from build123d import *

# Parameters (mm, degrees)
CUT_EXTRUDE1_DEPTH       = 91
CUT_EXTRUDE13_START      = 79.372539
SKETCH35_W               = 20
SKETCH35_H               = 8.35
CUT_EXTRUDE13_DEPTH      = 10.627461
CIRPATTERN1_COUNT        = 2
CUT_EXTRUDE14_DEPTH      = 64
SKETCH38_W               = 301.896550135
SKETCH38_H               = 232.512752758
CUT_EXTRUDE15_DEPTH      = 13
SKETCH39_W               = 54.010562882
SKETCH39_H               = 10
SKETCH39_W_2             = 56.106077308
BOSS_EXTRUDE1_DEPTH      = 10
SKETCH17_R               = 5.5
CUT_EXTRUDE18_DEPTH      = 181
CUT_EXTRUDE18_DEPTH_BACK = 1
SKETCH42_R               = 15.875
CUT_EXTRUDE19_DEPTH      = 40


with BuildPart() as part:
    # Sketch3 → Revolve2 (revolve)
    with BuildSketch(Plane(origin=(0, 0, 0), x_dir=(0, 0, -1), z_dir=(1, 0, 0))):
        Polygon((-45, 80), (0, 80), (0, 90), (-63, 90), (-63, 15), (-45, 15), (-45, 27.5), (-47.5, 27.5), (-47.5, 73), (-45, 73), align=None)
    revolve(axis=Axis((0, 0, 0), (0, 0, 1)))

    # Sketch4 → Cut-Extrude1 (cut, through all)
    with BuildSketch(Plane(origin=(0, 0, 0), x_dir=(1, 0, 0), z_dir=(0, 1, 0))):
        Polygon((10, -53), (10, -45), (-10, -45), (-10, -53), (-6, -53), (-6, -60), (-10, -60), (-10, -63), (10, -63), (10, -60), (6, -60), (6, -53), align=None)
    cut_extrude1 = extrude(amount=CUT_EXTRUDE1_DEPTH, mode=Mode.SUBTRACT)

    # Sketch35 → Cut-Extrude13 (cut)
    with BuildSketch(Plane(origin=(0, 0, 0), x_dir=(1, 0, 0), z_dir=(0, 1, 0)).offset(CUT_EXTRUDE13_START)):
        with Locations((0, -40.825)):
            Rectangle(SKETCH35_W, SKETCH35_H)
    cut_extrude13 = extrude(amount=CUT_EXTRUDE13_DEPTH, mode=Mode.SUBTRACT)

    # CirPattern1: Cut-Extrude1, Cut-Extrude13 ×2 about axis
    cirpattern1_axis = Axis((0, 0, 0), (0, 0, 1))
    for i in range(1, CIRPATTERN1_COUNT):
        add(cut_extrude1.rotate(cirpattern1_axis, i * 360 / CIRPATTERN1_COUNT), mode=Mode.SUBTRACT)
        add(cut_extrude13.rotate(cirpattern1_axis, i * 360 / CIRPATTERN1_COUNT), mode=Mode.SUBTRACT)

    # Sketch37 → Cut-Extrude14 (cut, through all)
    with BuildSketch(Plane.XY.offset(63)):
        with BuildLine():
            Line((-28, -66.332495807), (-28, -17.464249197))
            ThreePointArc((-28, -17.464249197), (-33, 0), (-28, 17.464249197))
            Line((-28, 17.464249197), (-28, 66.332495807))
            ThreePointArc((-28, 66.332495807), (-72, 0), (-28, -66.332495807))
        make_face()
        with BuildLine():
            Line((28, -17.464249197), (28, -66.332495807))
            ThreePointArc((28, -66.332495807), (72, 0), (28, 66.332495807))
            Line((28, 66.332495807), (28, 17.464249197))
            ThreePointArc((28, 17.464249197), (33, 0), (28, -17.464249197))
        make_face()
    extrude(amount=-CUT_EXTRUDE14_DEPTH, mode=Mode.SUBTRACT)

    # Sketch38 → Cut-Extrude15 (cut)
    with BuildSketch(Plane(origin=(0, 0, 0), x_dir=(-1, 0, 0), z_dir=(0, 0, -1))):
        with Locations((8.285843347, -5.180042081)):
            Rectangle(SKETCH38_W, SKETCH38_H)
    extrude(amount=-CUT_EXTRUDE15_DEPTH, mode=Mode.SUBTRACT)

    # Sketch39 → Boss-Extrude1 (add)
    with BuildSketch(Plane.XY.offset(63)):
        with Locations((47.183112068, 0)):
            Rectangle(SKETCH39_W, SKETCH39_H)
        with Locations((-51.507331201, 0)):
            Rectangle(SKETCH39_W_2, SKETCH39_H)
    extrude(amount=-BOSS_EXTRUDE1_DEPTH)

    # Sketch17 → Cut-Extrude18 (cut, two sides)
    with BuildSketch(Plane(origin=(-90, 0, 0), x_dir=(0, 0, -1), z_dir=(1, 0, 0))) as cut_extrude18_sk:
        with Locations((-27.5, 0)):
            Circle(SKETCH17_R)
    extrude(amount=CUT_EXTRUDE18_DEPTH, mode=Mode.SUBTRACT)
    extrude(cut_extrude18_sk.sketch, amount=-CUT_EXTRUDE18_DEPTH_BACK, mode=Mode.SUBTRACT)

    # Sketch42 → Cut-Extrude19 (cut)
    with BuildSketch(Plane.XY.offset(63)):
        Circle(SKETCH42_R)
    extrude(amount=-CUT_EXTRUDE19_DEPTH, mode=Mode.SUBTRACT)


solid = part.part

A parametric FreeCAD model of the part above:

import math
import FreeCAD as App
import Part
import Sketcher
from FreeCAD import Vector

doc = App.newDocument("Part")
body = doc.addObject("PartDesign::Body", "Body")

# Sketch on YZ plane
sketch1 = body.newObject("Sketcher::SketchObject", "Sketch")
sketch1.AttachmentSupport = (doc.getObject("YZ_Plane"), [""])
sketch1.MapMode = "FlatFace"
sketch1.addGeometry([
    Part.LineSegment(Vector(80, 45, 0), Vector(80, 0, 0)),  # 0
    Part.LineSegment(Vector(80, 0, 0), Vector(90, 0, 0)),  # 1
    Part.LineSegment(Vector(90, 0, 0), Vector(90, 63, 0)),  # 2
    Part.LineSegment(Vector(90, 63, 0), Vector(15, 63, 0)),  # 3
    Part.LineSegment(Vector(15, 63, 0), Vector(15, 45, 0)),  # 4
    Part.LineSegment(Vector(15, 45, 0), Vector(27.5, 45, 0)),  # 5
    Part.LineSegment(Vector(27.5, 45, 0), Vector(27.5, 47.5, 0)),  # 6
    Part.LineSegment(Vector(27.5, 47.5, 0), Vector(73, 47.5, 0)),  # 7
    Part.LineSegment(Vector(73, 47.5, 0), Vector(73, 45, 0)),  # 8
    Part.LineSegment(Vector(73, 45, 0), Vector(80, 45, 0)),  # 9
], False)
sketch1.addConstraint([
    Sketcher.Constraint("Coincident", 0, 2, 1, 1),
    Sketcher.Constraint("Coincident", 1, 2, 2, 1),
    Sketcher.Constraint("Coincident", 2, 2, 3, 1),
    Sketcher.Constraint("Coincident", 3, 2, 4, 1),
    Sketcher.Constraint("Coincident", 4, 2, 5, 1),
    Sketcher.Constraint("Coincident", 5, 2, 6, 1),
    Sketcher.Constraint("Coincident", 6, 2, 7, 1),
    Sketcher.Constraint("Coincident", 7, 2, 8, 1),
    Sketcher.Constraint("Coincident", 8, 2, 9, 1),
    Sketcher.Constraint("Coincident", 9, 2, 0, 1),
    Sketcher.Constraint("Vertical", 0),
    Sketcher.Constraint("Horizontal", 1),
    Sketcher.Constraint("Vertical", 2),
    Sketcher.Constraint("Horizontal", 3),
    Sketcher.Constraint("Vertical", 4),
    Sketcher.Constraint("Horizontal", 5),
    Sketcher.Constraint("Vertical", 6),
    Sketcher.Constraint("Horizontal", 7),
    Sketcher.Constraint("Vertical", 8),
    Sketcher.Constraint("Horizontal", 9),
    Sketcher.Constraint("PointOnObject", 0, 2, -1),
    Sketcher.Constraint("Horizontal", 5, 2, 8, 2),
    Sketcher.Constraint("DistanceX", 1, 1, 1, 2, 10.0),
    Sketcher.Constraint("DistanceX", 3, 2, 3, 1, 75.0),
    Sketcher.Constraint("DistanceX", 9, 1, 9, 2, 7.0),
    Sketcher.Constraint("DistanceY", 0, 2, 0, 1, 45.0),
    Sketcher.Constraint("DistanceY", 2, 1, 2, 2, 63.0),
    Sketcher.Constraint("DistanceX", 5, 1, 5, 2, 12.5),
    Sketcher.Constraint("DistanceY", 6, 1, 6, 2, 2.5),
    Sketcher.Constraint("DistanceX", -1, 1, 0, 2, 80.0),
])
revolution = body.newObject("PartDesign::Revolution", "Revolution")
revolution.Profile = sketch1
revolution.ReferenceAxis = (sketch1, ["V_Axis"])
revolution.Angle = 360

# Sketch on XZ plane
sketch2 = body.newObject("Sketcher::SketchObject", "Sketch001")
sketch2.AttachmentSupport = (doc.getObject("XZ_Plane"), [""])
sketch2.MapMode = "FlatFace"
sketch2.addGeometry([
    Part.LineSegment(Vector(10, 53, 0), Vector(10, 45, 0)),  # 0
    Part.LineSegment(Vector(10, 45, 0), Vector(-10, 45, 0)),  # 1
    Part.LineSegment(Vector(-10, 45, 0), Vector(-10, 53, 0)),  # 2
    Part.LineSegment(Vector(-10, 53, 0), Vector(-6, 53, 0)),  # 3
    Part.LineSegment(Vector(-6, 53, 0), Vector(-6, 60, 0)),  # 4
    Part.LineSegment(Vector(-6, 60, 0), Vector(-10, 60, 0)),  # 5
    Part.LineSegment(Vector(-10, 60, 0), Vector(-10, 63, 0)),  # 6
    Part.LineSegment(Vector(-10, 63, 0), Vector(10, 63, 0)),  # 7
    Part.LineSegment(Vector(10, 63, 0), Vector(10, 60, 0)),  # 8
    Part.LineSegment(Vector(10, 60, 0), Vector(6, 60, 0)),  # 9
    Part.LineSegment(Vector(6, 60, 0), Vector(6, 53, 0)),  # 10
    Part.LineSegment(Vector(6, 53, 0), Vector(10, 53, 0)),  # 11
], False)
sketch2.addConstraint([
    Sketcher.Constraint("Coincident", 0, 2, 1, 1),
    Sketcher.Constraint("Coincident", 1, 2, 2, 1),
    Sketcher.Constraint("Coincident", 2, 2, 3, 1),
    Sketcher.Constraint("Coincident", 3, 2, 4, 1),
    Sketcher.Constraint("Coincident", 4, 2, 5, 1),
    Sketcher.Constraint("Coincident", 5, 2, 6, 1),
    Sketcher.Constraint("Coincident", 6, 2, 7, 1),
    Sketcher.Constraint("Coincident", 7, 2, 8, 1),
    Sketcher.Constraint("Coincident", 8, 2, 9, 1),
    Sketcher.Constraint("Coincident", 9, 2, 10, 1),
    Sketcher.Constraint("Coincident", 10, 2, 11, 1),
    Sketcher.Constraint("Coincident", 11, 2, 0, 1),
    Sketcher.Constraint("Vertical", 0),
    Sketcher.Constraint("Horizontal", 1),
    Sketcher.Constraint("Vertical", 2),
    Sketcher.Constraint("Horizontal", 3),
    Sketcher.Constraint("Vertical", 4),
    Sketcher.Constraint("Horizontal", 5),
    Sketcher.Constraint("Vertical", 6),
    Sketcher.Constraint("Horizontal", 7),
    Sketcher.Constraint("Vertical", 8),
    Sketcher.Constraint("Horizontal", 9),
    Sketcher.Constraint("Vertical", 10),
    Sketcher.Constraint("Horizontal", 11),
    Sketcher.Constraint("Symmetric", 5, 2, 8, 2, -2),
    Sketcher.Constraint("Symmetric", 3, 2, 10, 2, -2),
    Sketcher.Constraint("Vertical", 2, 2, 5, 2),
    Sketcher.Constraint("Vertical", 0, 2, 7, 2),
    Sketcher.Constraint("DistanceX", 1, 2, 1, 1, 20.0),
    Sketcher.Constraint("DistanceX", 3, 1, 3, 2, 4.0),
    Sketcher.Constraint("DistanceY", 0, 2, 0, 1, 8.0),
    Sketcher.Constraint("DistanceY", 4, 1, 4, 2, 7.0),
    Sketcher.Constraint("DistanceY", 6, 1, 6, 2, 3.0),
    Sketcher.Constraint("DistanceY", -1, 1, 0, 2, 45.0),
])
pocket1 = body.newObject("PartDesign::Pocket", "Pocket")
pocket1.Profile = sketch2
pocket1.Type = "ThroughAll"

# Sketch on XZ plane
sketch3 = body.newObject("Sketcher::SketchObject", "Sketch002")
sketch3.AttachmentSupport = (doc.getObject("XZ_Plane"), [""])
sketch3.MapMode = "FlatFace"
sketch3.AttachmentOffset = App.Placement(Vector(0, 0, -79.372539), App.Rotation())
sketch3.addGeometry([
    Part.LineSegment(Vector(-10, 37, 0), Vector(-10, 45, 0)),
    Part.LineSegment(Vector(-10, 45, 0), Vector(10, 45, 0)),
    Part.LineSegment(Vector(10, 45, 0), Vector(10, 37, 0)),
    Part.LineSegment(Vector(10, 37, 0), Vector(-10, 37, 0)),
], False)
sketch3.addConstraint([
    Sketcher.Constraint("Coincident", 0, 2, 1, 1),
    Sketcher.Constraint("Coincident", 1, 2, 2, 1),
    Sketcher.Constraint("Coincident", 2, 2, 3, 1),
    Sketcher.Constraint("Coincident", 3, 2, 0, 1),
    Sketcher.Constraint("Vertical", 0),
    Sketcher.Constraint("Horizontal", 1),
    Sketcher.Constraint("Vertical", 2),
    Sketcher.Constraint("Horizontal", 3),
    Sketcher.Constraint("DistanceX", 1, 1, 1, 2, 20.0),
    Sketcher.Constraint("DistanceX", 0, 2, -1, 1, 10.0),
    Sketcher.Constraint("DistanceY", -1, 1, 0, 2, 45.0),
    Sketcher.Constraint("DistanceY", 0, 1, 0, 2, 8.35),
])
pocket2 = body.newObject("PartDesign::Pocket", "Pocket001")
pocket2.Profile = sketch3
pocket2.Length = 10.627461
doc.recompute()

polarpattern = body.newObject("PartDesign::PolarPattern", "PolarPattern")
polarpattern.Originals = [pocket1, pocket2]
polarpattern.Axis = (doc.getObject("Z_Axis"), [""])
polarpattern.Angle = 360
polarpattern.Occurrences = 2
body.Tip = polarpattern

# Sketch on XY plane
sketch4 = body.newObject("Sketcher::SketchObject", "Sketch003")
sketch4.AttachmentSupport = (doc.getObject("XY_Plane"), [""])
sketch4.MapMode = "FlatFace"
sketch4.AttachmentOffset = App.Placement(Vector(0, 0, 63), App.Rotation())
sketch4.addGeometry([
    Part.LineSegment(Vector(-28, -66, 0), Vector(-28, -17, 0)),  # 0
    Part.ArcOfCircle(Part.Circle(Vector(0, 0, 0), Vector(0, 0, 1), 33), math.radians(148), math.radians(212)),  # 1
    Part.LineSegment(Vector(-28, 17, 0), Vector(-28, 66, 0)),  # 2
    Part.ArcOfCircle(Part.Circle(Vector(0, 0, 0), Vector(0, 0, 1), 72), math.radians(113), math.radians(247)),  # 3
    Part.LineSegment(Vector(28, -17, 0), Vector(28, -66, 0)),  # 4
    Part.ArcOfCircle(Part.Circle(Vector(0, 0, 0), Vector(0, 0, 1), 72), math.radians(-67), math.radians(67)),  # 5
    Part.LineSegment(Vector(28, 66, 0), Vector(28, 17, 0)),  # 6
    Part.ArcOfCircle(Part.Circle(Vector(0, 0, 0), Vector(0, 0, 1), 33), math.radians(-32), math.radians(32)),  # 7
], False)
sketch4.addConstraint([
    Sketcher.Constraint("Coincident", 0, 2, 1, 2),
    Sketcher.Constraint("Coincident", 1, 1, 2, 1),
    Sketcher.Constraint("Coincident", 2, 2, 3, 1),
    Sketcher.Constraint("Coincident", 3, 2, 0, 1),
    Sketcher.Constraint("Coincident", 4, 2, 5, 1),
    Sketcher.Constraint("Coincident", 5, 2, 6, 1),
    Sketcher.Constraint("Coincident", 6, 2, 7, 2),
    Sketcher.Constraint("Coincident", 7, 1, 4, 1),
    Sketcher.Constraint("Vertical", 0),
    Sketcher.Constraint("Vertical", 2),
    Sketcher.Constraint("Vertical", 4),
    Sketcher.Constraint("Vertical", 6),
    Sketcher.Constraint("Coincident", 1, 3, -1, 1),
    Sketcher.Constraint("Coincident", 3, 3, -1, 1),
    Sketcher.Constraint("Coincident", 5, 3, -1, 1),
    Sketcher.Constraint("Coincident", 7, 3, -1, 1),
    Sketcher.Constraint("Equal", 3, 5),
    Sketcher.Constraint("Equal", 1, 7),
    Sketcher.Constraint("Horizontal", 3, 2, 4, 2),
    Sketcher.Constraint("Horizontal", 2, 2, 5, 2),
    Sketcher.Constraint("Vertical", 0, 2, 1, 1),
    Sketcher.Constraint("Radius", 1, 33.0),
    Sketcher.Constraint("Radius", 3, 72.0),
    Sketcher.Constraint("DistanceX", 0, 2, -1, 1, 28.0),
])
pocket3 = body.newObject("PartDesign::Pocket", "Pocket002")
pocket3.Profile = sketch4
pocket3.Type = "ThroughAll"

# Sketch on XY plane
sketch5 = body.newObject("Sketcher::SketchObject", "Sketch004")
sketch5.AttachmentSupport = (doc.getObject("XY_Plane"), [""])
sketch5.MapMode = "FlatFace"
sketch5.addGeometry([
    Part.LineSegment(Vector(143, 111, 0), Vector(143, -121, 0)),
    Part.LineSegment(Vector(143, -121, 0), Vector(-159, -121, 0)),
    Part.LineSegment(Vector(-159, -121, 0), Vector(-159, 111, 0)),
    Part.LineSegment(Vector(-159, 111, 0), Vector(143, 111, 0)),
], False)
sketch5.addConstraint([
    Sketcher.Constraint("Coincident", 0, 2, 1, 1),
    Sketcher.Constraint("Coincident", 1, 2, 2, 1),
    Sketcher.Constraint("Coincident", 2, 2, 3, 1),
    Sketcher.Constraint("Coincident", 3, 2, 0, 1),
    Sketcher.Constraint("Vertical", 0),
    Sketcher.Constraint("Horizontal", 1),
    Sketcher.Constraint("Vertical", 2),
    Sketcher.Constraint("Horizontal", 3),
    Sketcher.Constraint("DistanceX", 1, 2, 1, 1, 301.89655),
    Sketcher.Constraint("DistanceY", 0, 2, 0, 1, 232.512753),
    Sketcher.Constraint("DistanceX", -1, 1, 0, 2, 142.662432),
    Sketcher.Constraint("DistanceY", 0, 2, -1, 1, 121.436418),
])
pocket4 = body.newObject("PartDesign::Pocket", "Pocket003")
pocket4.Profile = sketch5
pocket4.Length = 13
pocket4.Reversed = True

# Sketch on XY plane
sketch6 = body.newObject("Sketcher::SketchObject", "Sketch005")
sketch6.AttachmentSupport = (doc.getObject("XY_Plane"), [""])
sketch6.MapMode = "FlatFace"
sketch6.AttachmentOffset = App.Placement(Vector(0, 0, 63), App.Rotation())
sketch6.addGeometry([
    Part.LineSegment(Vector(20, 5, 0), Vector(20, -5, 0)),  # 0
    Part.LineSegment(Vector(20, -5, 0), Vector(74, -5, 0)),  # 1
    Part.LineSegment(Vector(74, -5, 0), Vector(74, 5, 0)),  # 2
    Part.LineSegment(Vector(74, 5, 0), Vector(20, 5, 0)),  # 3
    Part.LineSegment(Vector(-80, 5, 0), Vector(-80, -5, 0)),  # 4
    Part.LineSegment(Vector(-80, -5, 0), Vector(-23, -5, 0)),  # 5
    Part.LineSegment(Vector(-23, -5, 0), Vector(-23, 5, 0)),  # 6
    Part.LineSegment(Vector(-23, 5, 0), Vector(-80, 5, 0)),  # 7
], False)
sketch6.addConstraint([
    Sketcher.Constraint("Coincident", 0, 2, 1, 1),
    Sketcher.Constraint("Coincident", 1, 2, 2, 1),
    Sketcher.Constraint("Coincident", 2, 2, 3, 1),
    Sketcher.Constraint("Coincident", 3, 2, 0, 1),
    Sketcher.Constraint("Coincident", 4, 2, 5, 1),
    Sketcher.Constraint("Coincident", 5, 2, 6, 1),
    Sketcher.Constraint("Coincident", 6, 2, 7, 1),
    Sketcher.Constraint("Coincident", 7, 2, 4, 1),
    Sketcher.Constraint("Vertical", 0),
    Sketcher.Constraint("Horizontal", 1),
    Sketcher.Constraint("Vertical", 2),
    Sketcher.Constraint("Horizontal", 3),
    Sketcher.Constraint("Vertical", 4),
    Sketcher.Constraint("Horizontal", 5),
    Sketcher.Constraint("Vertical", 6),
    Sketcher.Constraint("Horizontal", 7),
    Sketcher.Constraint("Horizontal", 1, 2, 4, 2),
    Sketcher.Constraint("Horizontal", 3, 2, 6, 2),
    Sketcher.Constraint("DistanceY", 0, 2, 0, 1, 10.0),
    Sketcher.Constraint("DistanceY", 0, 2, -1, 1, 5.0),
    Sketcher.Constraint("DistanceX", 4, 2, 0, 2, 99.7382),
    Sketcher.Constraint("DistanceX", 1, 1, 1, 2, 54.010563),
    Sketcher.Constraint("DistanceX", 5, 1, 5, 2, 56.106077),
    Sketcher.Constraint("DistanceX", -1, 1, 0, 2, 20.177831),
])
pad1 = body.newObject("PartDesign::Pad", "Pad")
pad1.Profile = sketch6
pad1.Length = 10
pad1.Reversed = True

# Sketch on YZ plane
sketch7 = body.newObject("Sketcher::SketchObject", "Sketch006")
sketch7.AttachmentSupport = (doc.getObject("YZ_Plane"), [""])
sketch7.MapMode = "FlatFace"
sketch7.AttachmentOffset = App.Placement(Vector(0, 0, -90), App.Rotation())
sketch7.addGeometry(Part.Circle(Vector(0, 28, 0), Vector(0, 0, 1), 6), False)
sketch7.addConstraint([
    Sketcher.Constraint("PointOnObject", 0, 3, -2),
    Sketcher.Constraint("Diameter", 0, 11.0),
    Sketcher.Constraint("DistanceY", -1, 1, 0, 3, 27.5),
])
pocket5 = body.newObject("PartDesign::Pocket", "Pocket004")
pocket5.Profile = sketch7
pocket5.Type = "ThroughAll"
pocket5.Midplane = True

# Sketch on XY plane
sketch8 = body.newObject("Sketcher::SketchObject", "Sketch007")
sketch8.AttachmentSupport = (doc.getObject("XY_Plane"), [""])
sketch8.MapMode = "FlatFace"
sketch8.AttachmentOffset = App.Placement(Vector(0, 0, 63), App.Rotation())
sketch8.addGeometry(Part.Circle(Vector(0, 0, 0), Vector(0, 0, 1), 16), False)
sketch8.addConstraint([
    Sketcher.Constraint("Coincident", 0, 3, -1, 1),
    Sketcher.Constraint("Diameter", 0, 31.75),
])
pocket6 = body.newObject("PartDesign::Pocket", "Pocket005")
pocket6.Profile = sketch8
pocket6.Length = 40

doc.recompute()
